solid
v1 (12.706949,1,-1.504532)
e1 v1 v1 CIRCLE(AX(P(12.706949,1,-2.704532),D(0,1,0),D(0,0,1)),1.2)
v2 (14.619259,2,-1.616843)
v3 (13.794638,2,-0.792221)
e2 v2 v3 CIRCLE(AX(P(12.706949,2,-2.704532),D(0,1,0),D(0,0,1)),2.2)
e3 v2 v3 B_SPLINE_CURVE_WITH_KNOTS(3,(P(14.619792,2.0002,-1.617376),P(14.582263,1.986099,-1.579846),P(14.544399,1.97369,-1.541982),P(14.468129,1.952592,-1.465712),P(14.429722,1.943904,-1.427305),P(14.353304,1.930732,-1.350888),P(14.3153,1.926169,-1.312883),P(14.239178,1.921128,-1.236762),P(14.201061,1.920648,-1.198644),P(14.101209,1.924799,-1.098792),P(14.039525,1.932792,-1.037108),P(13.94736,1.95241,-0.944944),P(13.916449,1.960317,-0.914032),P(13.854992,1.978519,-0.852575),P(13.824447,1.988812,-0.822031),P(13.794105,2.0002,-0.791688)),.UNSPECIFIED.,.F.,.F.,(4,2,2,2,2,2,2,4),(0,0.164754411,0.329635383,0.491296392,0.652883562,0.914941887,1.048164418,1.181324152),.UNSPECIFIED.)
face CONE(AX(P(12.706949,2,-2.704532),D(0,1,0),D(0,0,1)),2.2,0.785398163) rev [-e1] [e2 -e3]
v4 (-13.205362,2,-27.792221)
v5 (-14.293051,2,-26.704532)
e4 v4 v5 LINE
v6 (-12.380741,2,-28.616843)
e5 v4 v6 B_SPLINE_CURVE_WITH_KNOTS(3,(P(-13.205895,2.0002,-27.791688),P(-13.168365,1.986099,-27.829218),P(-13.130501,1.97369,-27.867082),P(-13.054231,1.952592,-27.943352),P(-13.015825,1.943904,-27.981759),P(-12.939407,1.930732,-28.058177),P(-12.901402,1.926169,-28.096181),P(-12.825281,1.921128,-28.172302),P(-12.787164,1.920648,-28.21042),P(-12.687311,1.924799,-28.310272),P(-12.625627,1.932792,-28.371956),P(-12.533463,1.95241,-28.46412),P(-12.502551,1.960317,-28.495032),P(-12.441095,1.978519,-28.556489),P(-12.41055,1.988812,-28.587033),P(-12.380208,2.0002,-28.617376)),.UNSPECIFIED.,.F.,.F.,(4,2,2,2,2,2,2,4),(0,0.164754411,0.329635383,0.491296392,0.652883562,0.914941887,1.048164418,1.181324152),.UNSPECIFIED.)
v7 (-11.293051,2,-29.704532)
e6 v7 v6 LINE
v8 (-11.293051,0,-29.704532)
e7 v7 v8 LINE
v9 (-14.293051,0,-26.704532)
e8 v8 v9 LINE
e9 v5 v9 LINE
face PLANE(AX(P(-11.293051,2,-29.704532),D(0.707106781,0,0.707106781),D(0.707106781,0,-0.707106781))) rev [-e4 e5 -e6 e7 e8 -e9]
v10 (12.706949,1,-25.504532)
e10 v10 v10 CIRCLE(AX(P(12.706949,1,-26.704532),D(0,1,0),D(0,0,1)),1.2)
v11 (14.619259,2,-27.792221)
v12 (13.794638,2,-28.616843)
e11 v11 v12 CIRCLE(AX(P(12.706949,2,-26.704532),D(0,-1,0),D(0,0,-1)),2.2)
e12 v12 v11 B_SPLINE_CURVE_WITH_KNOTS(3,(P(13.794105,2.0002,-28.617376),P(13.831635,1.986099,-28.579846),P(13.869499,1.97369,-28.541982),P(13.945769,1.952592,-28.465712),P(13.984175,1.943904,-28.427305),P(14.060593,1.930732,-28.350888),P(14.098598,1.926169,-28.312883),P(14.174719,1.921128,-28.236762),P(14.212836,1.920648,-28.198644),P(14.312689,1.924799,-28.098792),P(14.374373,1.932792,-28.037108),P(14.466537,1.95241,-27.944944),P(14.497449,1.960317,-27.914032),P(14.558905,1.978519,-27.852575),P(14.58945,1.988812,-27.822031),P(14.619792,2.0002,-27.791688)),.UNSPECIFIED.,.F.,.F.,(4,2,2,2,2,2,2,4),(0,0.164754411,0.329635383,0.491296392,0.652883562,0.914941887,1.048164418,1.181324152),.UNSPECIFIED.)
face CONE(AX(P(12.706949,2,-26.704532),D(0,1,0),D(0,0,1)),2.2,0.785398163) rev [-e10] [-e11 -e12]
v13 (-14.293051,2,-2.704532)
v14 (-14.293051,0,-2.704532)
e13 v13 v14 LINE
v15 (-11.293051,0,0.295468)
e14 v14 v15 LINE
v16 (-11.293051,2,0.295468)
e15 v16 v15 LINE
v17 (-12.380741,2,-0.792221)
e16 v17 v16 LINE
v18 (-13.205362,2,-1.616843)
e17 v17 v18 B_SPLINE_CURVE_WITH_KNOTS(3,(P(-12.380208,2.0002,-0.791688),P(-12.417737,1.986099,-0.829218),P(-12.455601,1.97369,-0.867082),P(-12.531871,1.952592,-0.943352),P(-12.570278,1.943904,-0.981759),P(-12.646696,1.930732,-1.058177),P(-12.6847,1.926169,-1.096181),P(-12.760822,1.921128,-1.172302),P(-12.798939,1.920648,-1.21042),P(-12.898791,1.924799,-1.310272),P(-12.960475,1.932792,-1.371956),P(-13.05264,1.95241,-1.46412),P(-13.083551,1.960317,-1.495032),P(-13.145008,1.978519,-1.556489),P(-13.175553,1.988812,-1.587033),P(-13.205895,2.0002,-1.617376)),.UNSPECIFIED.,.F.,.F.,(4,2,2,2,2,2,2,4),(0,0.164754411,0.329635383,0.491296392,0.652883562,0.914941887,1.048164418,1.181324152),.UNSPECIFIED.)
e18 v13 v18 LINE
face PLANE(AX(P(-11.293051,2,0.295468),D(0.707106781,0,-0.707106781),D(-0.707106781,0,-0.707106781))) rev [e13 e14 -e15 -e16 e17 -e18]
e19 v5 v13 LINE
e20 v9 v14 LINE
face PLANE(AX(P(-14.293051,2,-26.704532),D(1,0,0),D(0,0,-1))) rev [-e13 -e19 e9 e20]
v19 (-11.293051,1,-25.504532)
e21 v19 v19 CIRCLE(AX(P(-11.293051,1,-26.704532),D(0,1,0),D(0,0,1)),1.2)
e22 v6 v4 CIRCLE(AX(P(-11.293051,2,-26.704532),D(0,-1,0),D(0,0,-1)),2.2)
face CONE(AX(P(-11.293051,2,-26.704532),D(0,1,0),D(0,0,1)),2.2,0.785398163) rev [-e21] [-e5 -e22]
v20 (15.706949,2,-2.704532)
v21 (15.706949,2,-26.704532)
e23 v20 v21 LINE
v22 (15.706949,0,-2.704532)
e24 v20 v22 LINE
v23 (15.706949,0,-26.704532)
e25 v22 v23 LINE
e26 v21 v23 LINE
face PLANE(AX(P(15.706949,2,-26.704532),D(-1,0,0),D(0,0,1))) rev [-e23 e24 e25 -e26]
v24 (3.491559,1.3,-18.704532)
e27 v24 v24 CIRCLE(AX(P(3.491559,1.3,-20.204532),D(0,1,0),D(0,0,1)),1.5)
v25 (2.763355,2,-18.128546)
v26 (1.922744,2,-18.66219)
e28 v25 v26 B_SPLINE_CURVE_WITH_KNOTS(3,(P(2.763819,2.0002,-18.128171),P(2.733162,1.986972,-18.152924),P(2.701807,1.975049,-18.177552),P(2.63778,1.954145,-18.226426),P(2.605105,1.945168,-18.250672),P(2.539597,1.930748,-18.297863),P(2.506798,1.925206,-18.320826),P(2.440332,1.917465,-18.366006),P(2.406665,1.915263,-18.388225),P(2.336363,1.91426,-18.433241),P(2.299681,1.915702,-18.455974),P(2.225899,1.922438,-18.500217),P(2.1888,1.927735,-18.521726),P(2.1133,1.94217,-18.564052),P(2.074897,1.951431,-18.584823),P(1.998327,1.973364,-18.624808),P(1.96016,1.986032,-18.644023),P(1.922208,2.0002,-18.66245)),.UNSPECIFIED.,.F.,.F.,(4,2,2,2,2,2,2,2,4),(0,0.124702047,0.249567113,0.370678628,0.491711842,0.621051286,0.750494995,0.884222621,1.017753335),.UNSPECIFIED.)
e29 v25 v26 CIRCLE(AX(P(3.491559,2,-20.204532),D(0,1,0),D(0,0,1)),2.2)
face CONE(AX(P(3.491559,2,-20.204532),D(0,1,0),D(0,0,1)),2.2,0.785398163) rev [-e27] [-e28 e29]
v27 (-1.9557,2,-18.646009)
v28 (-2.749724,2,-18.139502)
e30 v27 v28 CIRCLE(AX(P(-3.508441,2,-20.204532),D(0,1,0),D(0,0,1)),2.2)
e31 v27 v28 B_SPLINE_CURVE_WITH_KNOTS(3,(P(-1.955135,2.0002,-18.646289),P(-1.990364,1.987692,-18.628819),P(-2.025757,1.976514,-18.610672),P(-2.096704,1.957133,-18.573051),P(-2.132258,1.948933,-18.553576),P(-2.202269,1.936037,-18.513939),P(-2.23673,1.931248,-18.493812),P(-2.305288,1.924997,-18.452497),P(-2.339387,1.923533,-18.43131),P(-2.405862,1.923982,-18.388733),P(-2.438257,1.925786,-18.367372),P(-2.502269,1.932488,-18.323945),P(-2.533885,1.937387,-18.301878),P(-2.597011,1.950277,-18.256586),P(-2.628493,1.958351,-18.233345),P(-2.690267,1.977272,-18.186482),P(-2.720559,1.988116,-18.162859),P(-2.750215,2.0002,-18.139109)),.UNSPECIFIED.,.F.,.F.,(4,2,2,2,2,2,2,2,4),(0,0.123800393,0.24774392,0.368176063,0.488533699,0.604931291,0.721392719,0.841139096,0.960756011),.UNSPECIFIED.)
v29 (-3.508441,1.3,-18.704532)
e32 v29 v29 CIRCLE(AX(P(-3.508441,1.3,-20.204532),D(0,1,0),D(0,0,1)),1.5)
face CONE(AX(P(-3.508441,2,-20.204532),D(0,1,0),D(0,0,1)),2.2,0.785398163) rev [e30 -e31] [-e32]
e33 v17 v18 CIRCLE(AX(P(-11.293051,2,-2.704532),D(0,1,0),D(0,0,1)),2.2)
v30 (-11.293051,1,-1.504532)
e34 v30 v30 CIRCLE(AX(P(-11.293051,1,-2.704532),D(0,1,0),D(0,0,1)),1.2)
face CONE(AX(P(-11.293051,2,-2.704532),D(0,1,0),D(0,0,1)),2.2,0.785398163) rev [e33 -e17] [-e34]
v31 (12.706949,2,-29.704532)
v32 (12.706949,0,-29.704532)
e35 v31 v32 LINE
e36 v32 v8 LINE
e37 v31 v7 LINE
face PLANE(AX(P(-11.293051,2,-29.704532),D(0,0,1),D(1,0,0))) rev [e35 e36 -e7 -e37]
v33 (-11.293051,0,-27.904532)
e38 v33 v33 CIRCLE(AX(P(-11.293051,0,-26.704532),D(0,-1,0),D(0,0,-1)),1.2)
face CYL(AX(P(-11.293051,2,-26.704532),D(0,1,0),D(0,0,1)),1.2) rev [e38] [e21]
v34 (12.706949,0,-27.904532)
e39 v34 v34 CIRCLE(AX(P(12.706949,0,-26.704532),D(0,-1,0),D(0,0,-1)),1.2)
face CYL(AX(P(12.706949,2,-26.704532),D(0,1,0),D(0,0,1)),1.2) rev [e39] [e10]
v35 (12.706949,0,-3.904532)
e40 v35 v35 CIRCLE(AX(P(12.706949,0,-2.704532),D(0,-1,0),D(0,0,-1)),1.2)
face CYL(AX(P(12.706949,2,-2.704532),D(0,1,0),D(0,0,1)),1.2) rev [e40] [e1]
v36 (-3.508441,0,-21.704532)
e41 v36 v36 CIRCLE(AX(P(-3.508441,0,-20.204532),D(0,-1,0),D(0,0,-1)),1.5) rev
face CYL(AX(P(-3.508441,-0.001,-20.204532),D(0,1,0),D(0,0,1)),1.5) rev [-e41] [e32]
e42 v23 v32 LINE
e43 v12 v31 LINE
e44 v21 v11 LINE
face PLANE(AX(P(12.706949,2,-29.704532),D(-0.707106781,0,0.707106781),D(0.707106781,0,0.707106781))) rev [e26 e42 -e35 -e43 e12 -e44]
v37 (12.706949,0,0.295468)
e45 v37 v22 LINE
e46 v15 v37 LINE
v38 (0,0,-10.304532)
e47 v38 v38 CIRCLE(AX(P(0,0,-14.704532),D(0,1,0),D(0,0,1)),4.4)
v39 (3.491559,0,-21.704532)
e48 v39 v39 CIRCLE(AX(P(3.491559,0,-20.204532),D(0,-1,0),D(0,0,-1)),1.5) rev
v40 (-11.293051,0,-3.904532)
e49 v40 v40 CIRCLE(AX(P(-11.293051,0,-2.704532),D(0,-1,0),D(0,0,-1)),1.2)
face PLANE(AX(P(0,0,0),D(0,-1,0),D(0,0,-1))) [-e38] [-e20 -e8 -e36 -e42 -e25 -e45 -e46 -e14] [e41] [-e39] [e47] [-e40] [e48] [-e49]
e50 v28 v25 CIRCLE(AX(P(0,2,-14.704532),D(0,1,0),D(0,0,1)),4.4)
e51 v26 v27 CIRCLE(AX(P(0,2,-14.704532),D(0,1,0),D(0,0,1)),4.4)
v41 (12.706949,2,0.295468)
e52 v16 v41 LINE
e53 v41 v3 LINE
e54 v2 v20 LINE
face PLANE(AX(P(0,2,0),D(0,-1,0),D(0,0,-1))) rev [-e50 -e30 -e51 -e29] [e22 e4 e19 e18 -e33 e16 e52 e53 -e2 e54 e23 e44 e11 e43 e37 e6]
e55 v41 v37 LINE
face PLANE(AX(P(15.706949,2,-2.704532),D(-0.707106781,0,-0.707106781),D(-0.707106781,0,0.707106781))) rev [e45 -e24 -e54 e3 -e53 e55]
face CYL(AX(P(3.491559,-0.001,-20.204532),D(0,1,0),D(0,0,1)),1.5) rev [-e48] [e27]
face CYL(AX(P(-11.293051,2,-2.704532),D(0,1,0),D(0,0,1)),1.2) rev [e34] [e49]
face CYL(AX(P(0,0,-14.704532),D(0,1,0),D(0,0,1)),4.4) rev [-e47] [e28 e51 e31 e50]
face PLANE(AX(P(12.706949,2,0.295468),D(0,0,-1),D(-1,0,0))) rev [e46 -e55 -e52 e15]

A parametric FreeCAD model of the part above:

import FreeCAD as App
import Part
import Sketcher
Q = App.Units.Quantity


def add_polygon(sketch, points):
    """Adds a closed chain of lines whose ends are joined by coincident constraints."""
    first, n = sketch.GeometryCount, len(points)
    for a, b in zip(points, points[1:] + points[:1]):
        sketch.addGeometry(Part.LineSegment(App.Vector(*a, 0), App.Vector(*b, 0)), False)
    for i in range(n):
        sketch.addConstraint(Sketcher.Constraint("Coincident", first + i, 2, first + (i + 1) % n, 1))

doc = App.newDocument("Part")
params = doc.addObject("Spreadsheet::Sheet", "Params")
for row, (alias, value) in enumerate([
    ("sketch1_width", "24 mm"),
    ("pad1_length", "2 mm"),
    ("sketch2_diameter", "8.8 mm"),
    ("sketch3_diameter", "3 mm"),
    ("sketch4_diameter", "3 mm"),
    ("sketch5_diameter", "2.4 mm"),
    ("hole_diameter", "2.4 mm"),
    ("hole_depth", "42.93 mm"),
    ("hole_csink_diameter", "4.4 mm"),
    ("sketch6_diameter", "2.4 mm"),
    ("hole2_diameter", "2.4 mm"),
    ("hole2_depth", "42.93 mm"),
    ("hole2_csink_diameter", "4.4 mm"),
], start=1):
    params.set(f"A{row}", alias)
    params.set(f"B{row}", "=" + value)
    params.setAlias(f"B{row}", alias)

body = doc.addObject("PartDesign::Body", "Body")

# Sketch on XZ plane
sketch1 = doc.addObject("Sketcher::SketchObject", "Sketch")
body.addObject(sketch1)
sketch1.AttachmentSupport = (doc.XZ_Plane, [""])
sketch1.MapMode = "FlatFace"
add_polygon(sketch1, [(12.7, -29.7), (-11.3, -29.7), (-14.3, -26.7), (-14.3, -2.7), (-11.3, 0.3), (12.7, 0.3), (15.7, -2.7), (15.7, -26.7)])  # lines 0-7
sketch1.addConstraint([
    Sketcher.Constraint("Horizontal", 0),
    Sketcher.Constraint("Vertical", 2),
    Sketcher.Constraint("Horizontal", 4),
    Sketcher.Constraint("Vertical", 6),
    Sketcher.Constraint("Perpendicular", 1, 3),
    Sketcher.Constraint("Perpendicular", 3, 5),
    Sketcher.Constraint("Perpendicular", 5, 7),
    Sketcher.Constraint("Horizontal", 2, 2, 5, 2),
    Sketcher.Constraint("Horizontal", 1, 2, 6, 2),
    Sketcher.Constraint("Vertical", 0, 2, 3, 2),
    Sketcher.Constraint("Vertical", 4, 2, 7, 2),
    Sketcher.Constraint("Equal", 4, 2),
    Sketcher.Constraint("DistanceX", 0, 2, 0, 1, Q("24 mm")),
    Sketcher.Constraint("DistanceX", 1, 2, 0, 2, Q("3 mm")),
    Sketcher.Constraint("DistanceX", 0, 2, -1, 1, Q("11.293051 mm")),
    Sketcher.Constraint("DistanceY", 0, 2, -1, 1, Q("29.704532 mm")),
])
sketch1.setExpression("Constraints[20]", "Params.sketch1_width")
pad1 = doc.addObject("PartDesign::Pad", "Pad")
body.addObject(pad1)
pad1.Profile = sketch1
pad1.setExpression("Length", "Params.pad1_length")
pad1.Reversed = True

# Sketch on XZ plane
sketch2 = doc.addObject("Sketcher::SketchObject", "Sketch001")
body.addObject(sketch2)
sketch2.AttachmentSupport = (doc.XZ_Plane, [""])
sketch2.MapMode = "FlatFace"
sketch2.AttachmentOffset = App.Placement(App.Vector(0, 0, -2), App.Rotation())
sketch2.addGeometry(Part.Circle(App.Vector(0, -14.7, 0), App.Vector(0, 0, 1), 4.4), False)
sketch2.addConstraint([
    Sketcher.Constraint("PointOnObject", 0, 3, -2),
    Sketcher.Constraint("Diameter", 0, Q("8.8 mm")),
    Sketcher.Constraint("DistanceY", 0, 3, -1, 1, Q("14.704532 mm")),
])
sketch2.setExpression("Constraints[1]", "Params.sketch2_diameter")
pocket1 = doc.addObject("PartDesign::Pocket", "Pocket")
body.addObject(pocket1)
pocket1.Profile = sketch2
pocket1.Type = "ThroughAll"
pocket1.Reversed = True

# Sketch on XZ plane
sketch3 = doc.addObject("Sketcher::SketchObject", "Sketch002")
body.addObject(sketch3)
sketch3.AttachmentSupport = (doc.XZ_Plane, [""])
sketch3.MapMode = "FlatFace"
sketch3.AttachmentOffset = App.Placement(App.Vector(0, 0, -2), App.Rotation())
sketch3.addGeometry(Part.Circle(App.Vector(-3.5, -20.2, 0), App.Vector(0, 0, 1), 1.5), False)
sketch3.addConstraint([
    Sketcher.Constraint("Diameter", 0, Q("3 mm")),
    Sketcher.Constraint("DistanceX", 0, 3, -1, 1, Q("3.508441 mm")),
    Sketcher.Constraint("DistanceY", 0, 3, -1, 1, Q("20.204532 mm")),
])
sketch3.setExpression("Constraints[0]", "Params.sketch3_diameter")
pocket2 = doc.addObject("PartDesign::Pocket", "Pocket001")
body.addObject(pocket2)
pocket2.Profile = sketch3
pocket2.Type = "UpToFirst"
pocket2.Reversed = True

# Sketch on XZ plane
sketch4 = doc.addObject("Sketcher::SketchObject", "Sketch003")
body.addObject(sketch4)
sketch4.AttachmentSupport = (doc.XZ_Plane, [""])
sketch4.MapMode = "FlatFace"
sketch4.AttachmentOffset = App.Placement(App.Vector(0, 0, -2), App.Rotation())
sketch4.addGeometry(Part.Circle(App.Vector(3.5, -20.2, 0), App.Vector(0, 0, 1), 1.5), False)
sketch4.addConstraint([
    Sketcher.Constraint("Diameter", 0, Q("3 mm")),
    Sketcher.Constraint("DistanceX", -1, 1, 0, 3, Q("3.491559 mm")),
    Sketcher.Constraint("DistanceY", 0, 3, -1, 1, Q("20.204532 mm")),
])
sketch4.setExpression("Constraints[0]", "Params.sketch4_diameter")
pocket3 = doc.addObject("PartDesign::Pocket", "Pocket002")
body.addObject(pocket3)
pocket3.Profile = sketch4
pocket3.Type = "UpToFirst"
pocket3.Reversed = True

# Sketch on XZ plane
sketch5 = doc.addObject("Sketcher::SketchObject", "Sketch004")
body.addObject(sketch5)
sketch5.AttachmentSupport = (doc.XZ_Plane, [""])
sketch5.MapMode = "FlatFace"
sketch5.AttachmentOffset = App.Placement(App.Vector(0, 0, -2), App.Rotation())
sketch5.addGeometry([
    Part.Circle(App.Vector(-3.5, -20.2, 0), App.Vector(0, 0, 1), 1.2),
    Part.Circle(App.Vector(3.5, -20.2, 0), App.Vector(0, 0, 1), 1.2),
], False)
sketch5.addConstraint([
    Sketcher.Constraint("Equal", 0, 1),
    Sketcher.Constraint("Horizontal", 0, 3, 1, 3),
    Sketcher.Constraint("Diameter", 0, Q("2.4 mm")),
    Sketcher.Constraint("DistanceX", 0, 3, 1, 3, Q("7 mm")),
    Sketcher.Constraint("DistanceX", 0, 3, -1, 1, Q("3.508441 mm")),
    Sketcher.Constraint("DistanceY", 0, 3, -1, 1, Q("20.204532 mm")),
])
sketch5.setExpression("Constraints[2]", "Params.sketch5_diameter")
doc.recompute()
hole = doc.addObject("PartDesign::Hole", "Hole")
body.addObject(hole)
hole.Profile = sketch5
hole.ThreadType = "None"
hole.setExpression("Diameter", "Params.hole_diameter")
hole.DepthType = "Dimension"
hole.setExpression("Depth", "Params.hole_depth")
hole.DrillPoint = "Angled"
hole.DrillPointAngle = 118
hole.HoleCutType = "Countersink"
hole.setExpression("HoleCutDiameter", "Params.hole_csink_diameter")
hole.HoleCutCountersinkAngle = 90
hole.Reversed = True

# Sketch on XZ plane
sketch6 = doc.addObject("Sketcher::SketchObject", "Sketch005")
body.addObject(sketch6)
sketch6.AttachmentSupport = (doc.XZ_Plane, [""])
sketch6.MapMode = "FlatFace"
sketch6.AttachmentOffset = App.Placement(App.Vector(0, 0, -2), App.Rotation())
sketch6.addGeometry([
    Part.Circle(App.Vector(-11.3, -26.7, 0), App.Vector(0, 0, 1), 1.2),
    Part.Circle(App.Vector(-11.3, -2.7, 0), App.Vector(0, 0, 1), 1.2),
    Part.Circle(App.Vector(12.7, -26.7, 0), App.Vector(0, 0, 1), 1.2),
    Part.Circle(App.Vector(12.7, -2.7, 0), App.Vector(0, 0, 1), 1.2),
], False)
sketch6.addConstraint([
    Sketcher.Constraint("Equal", 0, 1),
    Sketcher.Constraint("Equal", 1, 2),
    Sketcher.Constraint("Equal", 2, 3),
    Sketcher.Constraint("Horizontal", 0, 3, 2, 3),
    Sketcher.Constraint("Horizontal", 1, 3, 3, 3),
    Sketcher.Constraint("Vertical", 0, 3, 1, 3),
    Sketcher.Constraint("Vertical", 2, 3, 3, 3),
    Sketcher.Constraint("Diameter", 0, Q("2.4 mm")),
    Sketcher.Constraint("DistanceY", 0, 3, 1, 3, Q("24 mm")),
    Sketcher.Constraint("DistanceX", 0, 3, 2, 3, Q("24 mm")),
    Sketcher.Constraint("DistanceX", 0, 3, -1, 1, Q("11.293051 mm")),
    Sketcher.Constraint("DistanceY", 0, 3, -1, 1, Q("26.704532 mm")),
])
sketch6.setExpression("Constraints[7]", "Params.sketch6_diameter")
doc.recompute()
hole2 = doc.addObject("PartDesign::Hole", "Hole001")
body.addObject(hole2)
hole2.Profile = sketch6
hole2.ThreadType = "None"
hole2.setExpression("Diameter", "Params.hole2_diameter")
hole2.DepthType = "Dimension"
hole2.setExpression("Depth", "Params.hole2_depth")
hole2.DrillPoint = "Angled"
hole2.DrillPointAngle = 118
hole2.HoleCutType = "Countersink"
hole2.setExpression("HoleCutDiameter", "Params.hole2_csink_diameter")
hole2.HoleCutCountersinkAngle = 90
hole2.Reversed = True

doc.recompute()
